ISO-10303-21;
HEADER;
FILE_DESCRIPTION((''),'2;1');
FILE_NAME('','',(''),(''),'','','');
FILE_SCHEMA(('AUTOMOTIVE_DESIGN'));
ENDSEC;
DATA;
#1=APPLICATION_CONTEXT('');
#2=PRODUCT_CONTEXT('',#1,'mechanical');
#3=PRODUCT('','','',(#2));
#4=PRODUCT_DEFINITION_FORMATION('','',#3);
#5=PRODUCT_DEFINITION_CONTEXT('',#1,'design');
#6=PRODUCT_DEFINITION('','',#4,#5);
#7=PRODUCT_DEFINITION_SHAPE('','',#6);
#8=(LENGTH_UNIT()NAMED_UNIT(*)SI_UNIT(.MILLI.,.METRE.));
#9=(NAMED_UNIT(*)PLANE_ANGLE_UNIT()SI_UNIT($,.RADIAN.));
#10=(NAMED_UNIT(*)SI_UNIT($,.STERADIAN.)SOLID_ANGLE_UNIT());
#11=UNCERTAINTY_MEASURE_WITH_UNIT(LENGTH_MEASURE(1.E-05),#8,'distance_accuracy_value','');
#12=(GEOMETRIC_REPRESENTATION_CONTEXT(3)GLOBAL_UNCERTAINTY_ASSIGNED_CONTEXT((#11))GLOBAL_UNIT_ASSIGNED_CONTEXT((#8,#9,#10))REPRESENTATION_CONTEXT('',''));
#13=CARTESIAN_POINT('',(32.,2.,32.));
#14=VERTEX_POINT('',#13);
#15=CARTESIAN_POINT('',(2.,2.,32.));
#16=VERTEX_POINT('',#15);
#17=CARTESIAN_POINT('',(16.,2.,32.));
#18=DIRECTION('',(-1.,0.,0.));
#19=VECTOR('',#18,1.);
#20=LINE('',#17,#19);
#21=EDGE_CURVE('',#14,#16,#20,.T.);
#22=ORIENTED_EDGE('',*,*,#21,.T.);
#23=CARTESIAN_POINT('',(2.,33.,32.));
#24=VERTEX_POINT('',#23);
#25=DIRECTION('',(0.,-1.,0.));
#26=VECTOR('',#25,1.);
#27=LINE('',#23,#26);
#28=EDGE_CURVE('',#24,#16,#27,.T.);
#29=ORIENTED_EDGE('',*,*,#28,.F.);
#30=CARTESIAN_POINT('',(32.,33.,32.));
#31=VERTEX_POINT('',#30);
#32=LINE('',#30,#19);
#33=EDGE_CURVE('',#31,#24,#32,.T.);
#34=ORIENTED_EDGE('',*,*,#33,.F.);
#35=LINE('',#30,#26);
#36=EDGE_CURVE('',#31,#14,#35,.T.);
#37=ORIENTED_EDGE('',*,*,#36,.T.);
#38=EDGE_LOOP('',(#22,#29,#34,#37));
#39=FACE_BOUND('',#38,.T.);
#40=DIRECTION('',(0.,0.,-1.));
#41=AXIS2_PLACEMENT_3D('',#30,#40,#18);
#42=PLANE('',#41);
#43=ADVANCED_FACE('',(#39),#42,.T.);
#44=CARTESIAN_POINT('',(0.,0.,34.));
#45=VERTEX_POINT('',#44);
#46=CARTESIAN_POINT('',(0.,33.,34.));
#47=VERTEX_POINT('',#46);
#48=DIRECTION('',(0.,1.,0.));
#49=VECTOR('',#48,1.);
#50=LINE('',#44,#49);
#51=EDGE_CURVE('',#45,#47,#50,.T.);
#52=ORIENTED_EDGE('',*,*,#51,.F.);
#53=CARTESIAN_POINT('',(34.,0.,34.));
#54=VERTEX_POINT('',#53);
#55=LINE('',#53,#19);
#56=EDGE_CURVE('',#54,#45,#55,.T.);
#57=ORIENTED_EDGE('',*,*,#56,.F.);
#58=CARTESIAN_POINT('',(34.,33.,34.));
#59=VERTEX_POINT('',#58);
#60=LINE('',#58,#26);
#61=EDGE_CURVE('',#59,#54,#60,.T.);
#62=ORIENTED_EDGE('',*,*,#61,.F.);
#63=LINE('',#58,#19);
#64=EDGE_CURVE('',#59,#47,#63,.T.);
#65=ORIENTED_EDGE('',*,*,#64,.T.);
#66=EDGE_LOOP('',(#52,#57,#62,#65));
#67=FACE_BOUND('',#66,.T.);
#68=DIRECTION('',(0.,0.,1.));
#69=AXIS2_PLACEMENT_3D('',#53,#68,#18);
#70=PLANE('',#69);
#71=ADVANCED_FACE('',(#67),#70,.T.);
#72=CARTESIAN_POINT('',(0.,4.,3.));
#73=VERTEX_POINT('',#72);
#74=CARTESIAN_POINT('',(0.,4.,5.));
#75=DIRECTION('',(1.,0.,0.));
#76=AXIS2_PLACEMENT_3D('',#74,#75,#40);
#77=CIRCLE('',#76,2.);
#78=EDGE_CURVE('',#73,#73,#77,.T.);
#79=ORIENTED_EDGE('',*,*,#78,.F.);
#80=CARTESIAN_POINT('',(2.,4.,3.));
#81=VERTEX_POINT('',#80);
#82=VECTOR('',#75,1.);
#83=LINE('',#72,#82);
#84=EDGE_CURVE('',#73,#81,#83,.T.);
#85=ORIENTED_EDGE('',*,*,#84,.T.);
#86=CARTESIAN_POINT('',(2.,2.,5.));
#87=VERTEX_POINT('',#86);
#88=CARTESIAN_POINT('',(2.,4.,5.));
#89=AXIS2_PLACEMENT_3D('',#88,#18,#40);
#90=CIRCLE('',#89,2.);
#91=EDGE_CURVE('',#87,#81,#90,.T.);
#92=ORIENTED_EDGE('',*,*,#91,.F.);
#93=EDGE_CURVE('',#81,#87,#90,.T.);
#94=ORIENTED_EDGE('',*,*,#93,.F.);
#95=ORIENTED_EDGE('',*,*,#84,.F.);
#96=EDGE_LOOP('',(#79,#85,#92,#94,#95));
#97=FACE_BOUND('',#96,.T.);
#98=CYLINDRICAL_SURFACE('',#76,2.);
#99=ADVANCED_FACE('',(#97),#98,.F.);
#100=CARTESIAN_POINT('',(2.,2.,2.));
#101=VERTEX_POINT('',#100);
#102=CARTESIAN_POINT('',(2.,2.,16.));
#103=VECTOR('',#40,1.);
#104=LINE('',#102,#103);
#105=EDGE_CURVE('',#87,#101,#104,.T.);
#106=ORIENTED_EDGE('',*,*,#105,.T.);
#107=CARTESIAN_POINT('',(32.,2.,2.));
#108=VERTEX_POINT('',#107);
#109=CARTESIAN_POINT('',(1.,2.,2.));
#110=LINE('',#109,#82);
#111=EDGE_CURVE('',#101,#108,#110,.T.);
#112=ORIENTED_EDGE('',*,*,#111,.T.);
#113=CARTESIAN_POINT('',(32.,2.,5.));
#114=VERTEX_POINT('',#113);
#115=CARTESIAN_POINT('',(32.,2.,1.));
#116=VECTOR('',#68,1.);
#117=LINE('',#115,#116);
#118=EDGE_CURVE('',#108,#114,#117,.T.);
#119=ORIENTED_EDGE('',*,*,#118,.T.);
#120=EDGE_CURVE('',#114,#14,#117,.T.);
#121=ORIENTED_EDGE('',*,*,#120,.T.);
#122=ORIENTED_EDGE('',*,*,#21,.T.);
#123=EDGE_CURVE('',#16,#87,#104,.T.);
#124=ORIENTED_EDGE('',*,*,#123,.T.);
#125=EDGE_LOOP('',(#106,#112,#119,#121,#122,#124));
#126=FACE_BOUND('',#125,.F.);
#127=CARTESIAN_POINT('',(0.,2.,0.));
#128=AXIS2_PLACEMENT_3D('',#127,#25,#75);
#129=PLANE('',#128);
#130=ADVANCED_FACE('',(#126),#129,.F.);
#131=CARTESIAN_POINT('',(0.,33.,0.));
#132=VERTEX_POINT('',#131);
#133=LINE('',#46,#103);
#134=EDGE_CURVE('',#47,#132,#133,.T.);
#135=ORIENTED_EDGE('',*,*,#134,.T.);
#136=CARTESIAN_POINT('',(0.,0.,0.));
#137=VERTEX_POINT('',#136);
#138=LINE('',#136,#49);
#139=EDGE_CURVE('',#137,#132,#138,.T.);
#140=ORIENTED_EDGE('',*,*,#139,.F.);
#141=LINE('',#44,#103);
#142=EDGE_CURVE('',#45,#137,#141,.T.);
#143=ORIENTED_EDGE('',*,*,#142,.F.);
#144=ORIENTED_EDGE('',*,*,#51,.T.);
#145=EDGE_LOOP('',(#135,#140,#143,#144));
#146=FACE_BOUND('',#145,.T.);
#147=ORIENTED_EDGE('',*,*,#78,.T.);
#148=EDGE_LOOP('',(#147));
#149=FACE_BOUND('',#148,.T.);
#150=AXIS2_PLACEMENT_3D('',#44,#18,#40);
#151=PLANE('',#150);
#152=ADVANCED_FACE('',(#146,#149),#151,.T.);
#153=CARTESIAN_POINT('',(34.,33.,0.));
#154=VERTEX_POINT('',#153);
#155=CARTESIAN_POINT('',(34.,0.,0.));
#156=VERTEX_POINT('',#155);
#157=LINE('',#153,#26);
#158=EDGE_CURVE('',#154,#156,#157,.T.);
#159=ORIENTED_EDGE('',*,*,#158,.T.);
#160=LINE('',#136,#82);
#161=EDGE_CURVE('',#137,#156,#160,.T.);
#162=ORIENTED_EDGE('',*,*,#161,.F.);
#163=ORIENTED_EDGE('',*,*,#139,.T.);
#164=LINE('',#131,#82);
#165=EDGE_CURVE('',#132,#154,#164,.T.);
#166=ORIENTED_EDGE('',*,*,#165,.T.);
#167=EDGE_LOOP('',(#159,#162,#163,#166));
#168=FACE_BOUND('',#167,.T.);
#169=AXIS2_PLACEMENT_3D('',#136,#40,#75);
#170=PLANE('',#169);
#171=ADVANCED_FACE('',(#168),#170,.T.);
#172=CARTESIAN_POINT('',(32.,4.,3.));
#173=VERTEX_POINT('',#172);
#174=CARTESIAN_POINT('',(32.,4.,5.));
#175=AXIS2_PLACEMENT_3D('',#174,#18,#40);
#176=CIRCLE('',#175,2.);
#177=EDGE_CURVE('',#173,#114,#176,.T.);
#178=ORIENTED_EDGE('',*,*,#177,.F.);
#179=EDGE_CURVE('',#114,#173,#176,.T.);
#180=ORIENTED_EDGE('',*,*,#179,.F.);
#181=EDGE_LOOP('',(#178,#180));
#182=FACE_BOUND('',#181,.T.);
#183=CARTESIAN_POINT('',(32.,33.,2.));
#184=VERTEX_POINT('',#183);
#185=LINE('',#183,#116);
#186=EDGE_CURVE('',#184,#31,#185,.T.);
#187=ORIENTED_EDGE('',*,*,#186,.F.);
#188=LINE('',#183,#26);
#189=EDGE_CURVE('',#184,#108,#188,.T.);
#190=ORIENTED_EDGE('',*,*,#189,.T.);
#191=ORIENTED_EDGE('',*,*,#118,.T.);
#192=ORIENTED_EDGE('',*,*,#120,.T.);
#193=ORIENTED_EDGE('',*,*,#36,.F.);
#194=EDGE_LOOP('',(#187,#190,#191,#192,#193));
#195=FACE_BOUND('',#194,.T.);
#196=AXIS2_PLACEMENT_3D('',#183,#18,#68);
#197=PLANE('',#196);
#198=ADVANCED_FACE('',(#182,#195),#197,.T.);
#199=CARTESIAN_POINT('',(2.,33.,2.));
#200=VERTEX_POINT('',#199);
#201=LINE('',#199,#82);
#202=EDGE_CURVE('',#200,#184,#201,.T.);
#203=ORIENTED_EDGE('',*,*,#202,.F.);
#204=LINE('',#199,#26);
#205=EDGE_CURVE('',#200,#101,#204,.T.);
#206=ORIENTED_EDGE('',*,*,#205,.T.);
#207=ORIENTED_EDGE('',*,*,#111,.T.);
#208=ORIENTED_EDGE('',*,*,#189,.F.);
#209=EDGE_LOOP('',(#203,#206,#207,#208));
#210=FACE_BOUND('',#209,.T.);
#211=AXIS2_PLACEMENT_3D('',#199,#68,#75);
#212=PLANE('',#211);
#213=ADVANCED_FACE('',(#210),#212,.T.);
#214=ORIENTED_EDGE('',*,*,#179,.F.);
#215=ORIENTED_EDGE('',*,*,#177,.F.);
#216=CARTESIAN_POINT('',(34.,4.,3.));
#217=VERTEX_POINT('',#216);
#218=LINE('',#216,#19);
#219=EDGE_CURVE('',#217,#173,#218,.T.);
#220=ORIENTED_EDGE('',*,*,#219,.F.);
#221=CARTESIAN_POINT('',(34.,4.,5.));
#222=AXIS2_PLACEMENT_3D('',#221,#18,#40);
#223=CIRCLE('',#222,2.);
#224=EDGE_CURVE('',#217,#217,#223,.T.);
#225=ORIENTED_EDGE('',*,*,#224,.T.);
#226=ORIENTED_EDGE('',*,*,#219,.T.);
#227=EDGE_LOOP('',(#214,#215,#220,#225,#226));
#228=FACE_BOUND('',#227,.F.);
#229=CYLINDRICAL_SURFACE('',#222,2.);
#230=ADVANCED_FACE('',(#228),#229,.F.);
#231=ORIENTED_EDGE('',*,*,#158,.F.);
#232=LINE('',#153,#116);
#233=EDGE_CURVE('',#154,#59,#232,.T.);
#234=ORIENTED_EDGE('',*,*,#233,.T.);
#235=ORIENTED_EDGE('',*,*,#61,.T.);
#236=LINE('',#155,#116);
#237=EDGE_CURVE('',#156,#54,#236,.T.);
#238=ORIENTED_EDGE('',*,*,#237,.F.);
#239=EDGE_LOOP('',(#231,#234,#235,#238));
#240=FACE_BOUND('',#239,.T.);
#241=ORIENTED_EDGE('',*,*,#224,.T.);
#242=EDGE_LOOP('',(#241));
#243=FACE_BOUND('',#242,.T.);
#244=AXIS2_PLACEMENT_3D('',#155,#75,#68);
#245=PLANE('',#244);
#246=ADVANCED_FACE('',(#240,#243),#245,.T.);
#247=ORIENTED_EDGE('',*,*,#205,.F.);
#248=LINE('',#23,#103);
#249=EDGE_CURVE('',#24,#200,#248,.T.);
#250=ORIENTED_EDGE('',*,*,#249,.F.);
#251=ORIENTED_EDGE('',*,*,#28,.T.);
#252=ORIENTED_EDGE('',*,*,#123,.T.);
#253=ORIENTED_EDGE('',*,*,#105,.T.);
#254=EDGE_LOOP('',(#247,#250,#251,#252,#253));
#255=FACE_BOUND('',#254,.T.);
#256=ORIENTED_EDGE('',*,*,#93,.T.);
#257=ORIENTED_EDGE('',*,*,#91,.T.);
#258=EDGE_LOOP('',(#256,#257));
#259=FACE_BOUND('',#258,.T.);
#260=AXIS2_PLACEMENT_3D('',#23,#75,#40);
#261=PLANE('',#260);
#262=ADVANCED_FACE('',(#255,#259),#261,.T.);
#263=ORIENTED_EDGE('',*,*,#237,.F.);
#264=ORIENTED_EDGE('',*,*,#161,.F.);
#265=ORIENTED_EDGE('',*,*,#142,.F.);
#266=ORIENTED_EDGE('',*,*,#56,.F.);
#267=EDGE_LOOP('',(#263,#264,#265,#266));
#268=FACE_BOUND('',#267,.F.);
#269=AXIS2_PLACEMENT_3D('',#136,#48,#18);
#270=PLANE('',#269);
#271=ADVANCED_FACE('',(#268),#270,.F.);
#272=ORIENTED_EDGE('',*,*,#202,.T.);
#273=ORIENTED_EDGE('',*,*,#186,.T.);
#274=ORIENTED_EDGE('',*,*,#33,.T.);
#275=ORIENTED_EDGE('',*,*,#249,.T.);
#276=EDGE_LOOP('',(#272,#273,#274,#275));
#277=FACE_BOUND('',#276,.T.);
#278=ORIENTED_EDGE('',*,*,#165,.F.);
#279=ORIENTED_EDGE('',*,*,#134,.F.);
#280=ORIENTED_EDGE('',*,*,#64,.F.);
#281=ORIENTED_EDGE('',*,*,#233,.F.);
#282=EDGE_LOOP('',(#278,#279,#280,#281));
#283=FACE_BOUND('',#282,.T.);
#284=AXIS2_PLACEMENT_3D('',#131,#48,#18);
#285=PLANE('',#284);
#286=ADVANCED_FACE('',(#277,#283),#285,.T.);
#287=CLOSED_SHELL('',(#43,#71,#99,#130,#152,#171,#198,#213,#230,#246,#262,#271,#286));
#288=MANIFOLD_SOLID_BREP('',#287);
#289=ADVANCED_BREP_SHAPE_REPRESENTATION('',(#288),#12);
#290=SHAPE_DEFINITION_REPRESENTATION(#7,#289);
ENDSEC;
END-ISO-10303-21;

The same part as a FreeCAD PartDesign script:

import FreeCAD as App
import Part
import Sketcher

V = App.Vector
Q = App.Units.Quantity

doc = App.newDocument("Part")
body = doc.addObject("PartDesign::Body", "Body")

sketch1 = doc.addObject("Sketcher::SketchObject", "Sketch")
body.addObject(sketch1)
sketch1.AttachmentSupport = (doc.XZ_Plane, [""])
sketch1.MapMode = "FlatFace"
sketch1.addGeometry(Part.LineSegment(V(34, 0, 0), V(0, 0, 0)), False)
sketch1.addGeometry(Part.LineSegment(V(0, 0, 0), V(0, 34, 0)), False)
sketch1.addGeometry(Part.LineSegment(V(0, 34, 0), V(34, 34, 0)), False)
sketch1.addGeometry(Part.LineSegment(V(34, 34, 0), V(34, 0, 0)), False)
sketch1.addConstraint(Sketcher.Constraint("Coincident", 0, 2, 1, 1))
sketch1.addConstraint(Sketcher.Constraint("Coincident", 1, 2, 2, 1))
sketch1.addConstraint(Sketcher.Constraint("Coincident", 2, 2, 3, 1))
sketch1.addConstraint(Sketcher.Constraint("Coincident", 3, 2, 0, 1))
sketch1.addConstraint(Sketcher.Constraint("Horizontal", 0))
sketch1.addConstraint(Sketcher.Constraint("Vertical", 1))
sketch1.addConstraint(Sketcher.Constraint("Horizontal", 2))
sketch1.addConstraint(Sketcher.Constraint("Vertical", 3))
sketch1.addConstraint(Sketcher.Constraint("Coincident", 0, 2, -1, 1))
sketch1.addConstraint(Sketcher.Constraint("Equal", 2, 1))
sketch1.addConstraint(Sketcher.Constraint("DistanceX", 0, 2, 0, 1, Q("34 mm")))
pad1 = doc.addObject("PartDesign::Pad", "Pad")
body.addObject(pad1)
pad1.Profile = sketch1
pad1.Length = 33
pad1.Reversed = True

sketch2 = doc.addObject("Sketcher::SketchObject", "Sketch001")
body.addObject(sketch2)
sketch2.AttachmentSupport = (doc.XZ_Plane, [""])
sketch2.MapMode = "FlatFace"
sketch2.AttachmentOffset = App.Placement(V(0, 0, -33), App.Rotation())
sketch2.addGeometry(Part.LineSegment(V(32, 2, 0), V(2, 2, 0)), False)
sketch2.addGeometry(Part.LineSegment(V(2, 2, 0), V(2, 32, 0)), False)
sketch2.addGeometry(Part.LineSegment(V(2, 32, 0), V(32, 32, 0)), False)
sketch2.addGeometry(Part.LineSegment(V(32, 32, 0), V(32, 2, 0)), False)
sketch2.addConstraint(Sketcher.Constraint("Coincident", 0, 2, 1, 1))
sketch2.addConstraint(Sketcher.Constraint("Coincident", 1, 2, 2, 1))
sketch2.addConstraint(Sketcher.Constraint("Coincident", 2, 2, 3, 1))
sketch2.addConstraint(Sketcher.Constraint("Coincident", 3, 2, 0, 1))
sketch2.addConstraint(Sketcher.Constraint("Horizontal", 0))
sketch2.addConstraint(Sketcher.Constraint("Vertical", 1))
sketch2.addConstraint(Sketcher.Constraint("Horizontal", 2))
sketch2.addConstraint(Sketcher.Constraint("Vertical", 3))
sketch2.addConstraint(Sketcher.Constraint("Equal", 2, 1))
sketch2.addConstraint(Sketcher.Constraint("DistanceX", -1, 1, 0, 2, Q("2 mm")))
sketch2.addConstraint(Sketcher.Constraint("DistanceY", -1, 1, 0, 2, Q("2 mm")))
sketch2.addConstraint(Sketcher.Constraint("DistanceX", 0, 2, 0, 1, Q("30 mm")))
pocket1 = doc.addObject("PartDesign::Pocket", "Pocket")
body.addObject(pocket1)
pocket1.Profile = sketch2
pocket1.Length = 36
pocket1.Reversed = True

sketch3 = doc.addObject("Sketcher::SketchObject", "Sketch002")
body.addObject(sketch3)
sketch3.AttachmentSupport = (doc.YZ_Plane, [""])
sketch3.MapMode = "FlatFace"
sketch3.AttachmentOffset = App.Placement(V(0, 0, 34), App.Rotation())
sketch3.addGeometry(Part.Circle(V(4, 5, 0), V(0, 0, 1), 2), False)
sketch3.addConstraint(Sketcher.Constraint("Diameter", 0, Q("4 mm")))
sketch3.addConstraint(Sketcher.Constraint("DistanceX", -1, 1, 0, 3, Q("4 mm")))
sketch3.addConstraint(Sketcher.Constraint("DistanceY", -1, 1, 0, 3, Q("5 mm")))
doc.recompute()
hole = doc.addObject("PartDesign::Hole", "Hole")
body.addObject(hole)
hole.Profile = sketch3
hole.ThreadType = "None"
hole.Diameter = 4
hole.DepthType = "Dimension"
hole.Depth = 2
hole.DrillPoint = "Flat"
doc.recompute()

datumplane = doc.addObject("PartDesign::Plane", "DatumPlane")
body.addObject(datumplane)
datumplane.AttachmentSupport = (doc.YZ_Plane, [""])
datumplane.MapMode = "FlatFace"
datumplane.AttachmentOffset = App.Placement(V(0, 0, 17), App.Rotation())
mirrored = doc.addObject("PartDesign::Mirrored", "Mirrored")
body.addObject(mirrored)
mirrored.Originals = [hole]
mirrored.MirrorPlane = (datumplane, [""])
body.Tip = mirrored

sketch4 = doc.addObject("Sketcher::SketchObject", "Sketch003")
body.addObject(sketch4)
sketch4.AttachmentSupport = (doc.XZ_Plane, [""])
sketch4.MapMode = "FlatFace"
sketch4.addGeometry(Part.LineSegment(V(0, 0, 0), V(34, 0, 0)), False)
sketch4.addGeometry(Part.LineSegment(V(34, 0, 0), V(34, 34, 0)), False)
sketch4.addGeometry(Part.LineSegment(V(34, 34, 0), V(0, 34, 0)), False)
sketch4.addGeometry(Part.LineSegment(V(0, 34, 0), V(0, 0, 0)), False)
sketch4.addConstraint(Sketcher.Constraint("Coincident", 0, 2, 1, 1))
sketch4.addConstraint(Sketcher.Constraint("Coincident", 1, 2, 2, 1))
sketch4.addConstraint(Sketcher.Constraint("Coincident", 2, 2, 3, 1))
sketch4.addConstraint(Sketcher.Constraint("Coincident", 3, 2, 0, 1))
sketch4.addConstraint(Sketcher.Constraint("Horizontal", 0))
sketch4.addConstraint(Sketcher.Constraint("Vertical", 1))
sketch4.addConstraint(Sketcher.Constraint("Horizontal", 2))
sketch4.addConstraint(Sketcher.Constraint("Vertical", 3))
sketch4.addConstraint(Sketcher.Constraint("Coincident", 3, 2, -1, 1))
sketch4.addConstraint(Sketcher.Constraint("Equal", 2, 1))
sketch4.addConstraint(Sketcher.Constraint("DistanceX", 0, 1, 0, 2, Q("34 mm")))
pad2 = doc.addObject("PartDesign::Pad", "Pad001")
body.addObject(pad2)
pad2.Profile = sketch4
pad2.Length = 2
pad2.Reversed = True

doc.recompute()
